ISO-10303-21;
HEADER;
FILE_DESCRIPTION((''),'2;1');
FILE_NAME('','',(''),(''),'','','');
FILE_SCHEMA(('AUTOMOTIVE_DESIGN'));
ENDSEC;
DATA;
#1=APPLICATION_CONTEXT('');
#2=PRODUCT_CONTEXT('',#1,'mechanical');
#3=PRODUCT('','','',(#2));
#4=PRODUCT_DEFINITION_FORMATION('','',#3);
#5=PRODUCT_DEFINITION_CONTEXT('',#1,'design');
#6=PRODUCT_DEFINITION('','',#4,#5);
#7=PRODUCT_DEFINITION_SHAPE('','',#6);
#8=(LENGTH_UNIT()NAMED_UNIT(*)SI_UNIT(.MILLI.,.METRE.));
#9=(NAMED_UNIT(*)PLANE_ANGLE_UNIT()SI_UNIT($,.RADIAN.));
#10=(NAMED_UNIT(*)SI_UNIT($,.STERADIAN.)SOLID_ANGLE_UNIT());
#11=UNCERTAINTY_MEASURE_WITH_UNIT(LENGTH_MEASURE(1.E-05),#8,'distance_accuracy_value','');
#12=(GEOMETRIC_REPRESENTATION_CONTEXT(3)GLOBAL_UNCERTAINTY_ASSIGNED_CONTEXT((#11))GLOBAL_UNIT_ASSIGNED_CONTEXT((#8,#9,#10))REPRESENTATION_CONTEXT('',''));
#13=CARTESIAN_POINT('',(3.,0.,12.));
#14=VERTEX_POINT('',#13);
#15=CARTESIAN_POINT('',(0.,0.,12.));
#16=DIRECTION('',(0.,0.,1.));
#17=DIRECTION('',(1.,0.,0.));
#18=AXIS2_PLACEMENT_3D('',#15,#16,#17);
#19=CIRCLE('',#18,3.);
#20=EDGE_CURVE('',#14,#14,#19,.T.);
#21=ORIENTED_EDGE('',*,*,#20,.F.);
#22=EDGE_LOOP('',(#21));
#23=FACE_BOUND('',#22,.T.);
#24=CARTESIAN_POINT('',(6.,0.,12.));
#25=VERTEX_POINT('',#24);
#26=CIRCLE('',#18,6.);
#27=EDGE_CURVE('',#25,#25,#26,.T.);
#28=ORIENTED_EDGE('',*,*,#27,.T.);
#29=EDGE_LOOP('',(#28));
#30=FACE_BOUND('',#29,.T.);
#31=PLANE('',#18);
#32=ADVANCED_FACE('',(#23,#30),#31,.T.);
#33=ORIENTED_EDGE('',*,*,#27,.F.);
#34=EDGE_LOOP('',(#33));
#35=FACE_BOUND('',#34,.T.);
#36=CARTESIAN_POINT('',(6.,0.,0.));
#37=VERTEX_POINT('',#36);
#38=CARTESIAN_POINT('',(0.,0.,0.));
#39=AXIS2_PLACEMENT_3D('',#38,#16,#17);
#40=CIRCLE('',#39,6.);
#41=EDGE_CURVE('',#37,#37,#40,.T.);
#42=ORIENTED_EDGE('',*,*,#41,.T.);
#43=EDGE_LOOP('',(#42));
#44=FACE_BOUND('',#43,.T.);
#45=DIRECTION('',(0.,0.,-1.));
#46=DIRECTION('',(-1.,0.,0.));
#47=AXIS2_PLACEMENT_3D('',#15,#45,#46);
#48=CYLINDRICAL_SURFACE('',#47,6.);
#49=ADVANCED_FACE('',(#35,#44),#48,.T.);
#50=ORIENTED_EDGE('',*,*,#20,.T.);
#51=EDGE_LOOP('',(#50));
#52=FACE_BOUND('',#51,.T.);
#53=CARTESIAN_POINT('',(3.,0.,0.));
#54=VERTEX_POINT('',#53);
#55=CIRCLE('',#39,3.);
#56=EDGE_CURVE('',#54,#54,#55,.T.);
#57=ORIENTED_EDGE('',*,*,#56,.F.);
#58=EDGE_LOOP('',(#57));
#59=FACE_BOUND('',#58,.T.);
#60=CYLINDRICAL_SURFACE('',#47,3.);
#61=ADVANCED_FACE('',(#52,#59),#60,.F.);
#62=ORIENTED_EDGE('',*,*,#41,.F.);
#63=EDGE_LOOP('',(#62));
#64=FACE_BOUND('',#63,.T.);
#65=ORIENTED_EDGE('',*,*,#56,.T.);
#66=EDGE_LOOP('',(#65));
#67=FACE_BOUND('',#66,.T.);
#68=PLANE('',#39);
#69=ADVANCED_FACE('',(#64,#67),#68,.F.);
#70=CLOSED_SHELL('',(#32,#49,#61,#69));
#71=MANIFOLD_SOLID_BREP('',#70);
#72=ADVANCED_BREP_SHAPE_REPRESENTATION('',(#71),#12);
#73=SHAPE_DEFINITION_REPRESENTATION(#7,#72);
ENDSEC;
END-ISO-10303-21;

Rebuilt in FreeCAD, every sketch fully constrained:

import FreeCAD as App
import Part
import Sketcher

V = App.Vector

doc = App.newDocument("Part")
body = doc.addObject("PartDesign::Body", "Body")

sketch1 = body.newObject("Sketcher::SketchObject", "Sketch")
sketch1.AttachmentSupport = (doc.getObject("XY_Plane"), [""])
sketch1.MapMode = "FlatFace"
sketch1.addGeometry(Part.Circle(V(0, 0, 0), V(0, 0, 1), 6), False)
sketch1.addGeometry(Part.Circle(V(0, 0, 0), V(0, 0, 1), 3), False)
sketch1.addConstraint(Sketcher.Constraint("Coincident", 0, 3, -1, 1))
sketch1.addConstraint(Sketcher.Constraint("Coincident", 1, 3, -1, 1))
sketch1.addConstraint(Sketcher.Constraint("Diameter", 0, 12.0))
sketch1.addConstraint(Sketcher.Constraint("Diameter", 1, 6.0))
pad1 = body.newObject("PartDesign::Pad", "Pad")
pad1.Profile = sketch1
pad1.Length = 12

doc.recompute()
